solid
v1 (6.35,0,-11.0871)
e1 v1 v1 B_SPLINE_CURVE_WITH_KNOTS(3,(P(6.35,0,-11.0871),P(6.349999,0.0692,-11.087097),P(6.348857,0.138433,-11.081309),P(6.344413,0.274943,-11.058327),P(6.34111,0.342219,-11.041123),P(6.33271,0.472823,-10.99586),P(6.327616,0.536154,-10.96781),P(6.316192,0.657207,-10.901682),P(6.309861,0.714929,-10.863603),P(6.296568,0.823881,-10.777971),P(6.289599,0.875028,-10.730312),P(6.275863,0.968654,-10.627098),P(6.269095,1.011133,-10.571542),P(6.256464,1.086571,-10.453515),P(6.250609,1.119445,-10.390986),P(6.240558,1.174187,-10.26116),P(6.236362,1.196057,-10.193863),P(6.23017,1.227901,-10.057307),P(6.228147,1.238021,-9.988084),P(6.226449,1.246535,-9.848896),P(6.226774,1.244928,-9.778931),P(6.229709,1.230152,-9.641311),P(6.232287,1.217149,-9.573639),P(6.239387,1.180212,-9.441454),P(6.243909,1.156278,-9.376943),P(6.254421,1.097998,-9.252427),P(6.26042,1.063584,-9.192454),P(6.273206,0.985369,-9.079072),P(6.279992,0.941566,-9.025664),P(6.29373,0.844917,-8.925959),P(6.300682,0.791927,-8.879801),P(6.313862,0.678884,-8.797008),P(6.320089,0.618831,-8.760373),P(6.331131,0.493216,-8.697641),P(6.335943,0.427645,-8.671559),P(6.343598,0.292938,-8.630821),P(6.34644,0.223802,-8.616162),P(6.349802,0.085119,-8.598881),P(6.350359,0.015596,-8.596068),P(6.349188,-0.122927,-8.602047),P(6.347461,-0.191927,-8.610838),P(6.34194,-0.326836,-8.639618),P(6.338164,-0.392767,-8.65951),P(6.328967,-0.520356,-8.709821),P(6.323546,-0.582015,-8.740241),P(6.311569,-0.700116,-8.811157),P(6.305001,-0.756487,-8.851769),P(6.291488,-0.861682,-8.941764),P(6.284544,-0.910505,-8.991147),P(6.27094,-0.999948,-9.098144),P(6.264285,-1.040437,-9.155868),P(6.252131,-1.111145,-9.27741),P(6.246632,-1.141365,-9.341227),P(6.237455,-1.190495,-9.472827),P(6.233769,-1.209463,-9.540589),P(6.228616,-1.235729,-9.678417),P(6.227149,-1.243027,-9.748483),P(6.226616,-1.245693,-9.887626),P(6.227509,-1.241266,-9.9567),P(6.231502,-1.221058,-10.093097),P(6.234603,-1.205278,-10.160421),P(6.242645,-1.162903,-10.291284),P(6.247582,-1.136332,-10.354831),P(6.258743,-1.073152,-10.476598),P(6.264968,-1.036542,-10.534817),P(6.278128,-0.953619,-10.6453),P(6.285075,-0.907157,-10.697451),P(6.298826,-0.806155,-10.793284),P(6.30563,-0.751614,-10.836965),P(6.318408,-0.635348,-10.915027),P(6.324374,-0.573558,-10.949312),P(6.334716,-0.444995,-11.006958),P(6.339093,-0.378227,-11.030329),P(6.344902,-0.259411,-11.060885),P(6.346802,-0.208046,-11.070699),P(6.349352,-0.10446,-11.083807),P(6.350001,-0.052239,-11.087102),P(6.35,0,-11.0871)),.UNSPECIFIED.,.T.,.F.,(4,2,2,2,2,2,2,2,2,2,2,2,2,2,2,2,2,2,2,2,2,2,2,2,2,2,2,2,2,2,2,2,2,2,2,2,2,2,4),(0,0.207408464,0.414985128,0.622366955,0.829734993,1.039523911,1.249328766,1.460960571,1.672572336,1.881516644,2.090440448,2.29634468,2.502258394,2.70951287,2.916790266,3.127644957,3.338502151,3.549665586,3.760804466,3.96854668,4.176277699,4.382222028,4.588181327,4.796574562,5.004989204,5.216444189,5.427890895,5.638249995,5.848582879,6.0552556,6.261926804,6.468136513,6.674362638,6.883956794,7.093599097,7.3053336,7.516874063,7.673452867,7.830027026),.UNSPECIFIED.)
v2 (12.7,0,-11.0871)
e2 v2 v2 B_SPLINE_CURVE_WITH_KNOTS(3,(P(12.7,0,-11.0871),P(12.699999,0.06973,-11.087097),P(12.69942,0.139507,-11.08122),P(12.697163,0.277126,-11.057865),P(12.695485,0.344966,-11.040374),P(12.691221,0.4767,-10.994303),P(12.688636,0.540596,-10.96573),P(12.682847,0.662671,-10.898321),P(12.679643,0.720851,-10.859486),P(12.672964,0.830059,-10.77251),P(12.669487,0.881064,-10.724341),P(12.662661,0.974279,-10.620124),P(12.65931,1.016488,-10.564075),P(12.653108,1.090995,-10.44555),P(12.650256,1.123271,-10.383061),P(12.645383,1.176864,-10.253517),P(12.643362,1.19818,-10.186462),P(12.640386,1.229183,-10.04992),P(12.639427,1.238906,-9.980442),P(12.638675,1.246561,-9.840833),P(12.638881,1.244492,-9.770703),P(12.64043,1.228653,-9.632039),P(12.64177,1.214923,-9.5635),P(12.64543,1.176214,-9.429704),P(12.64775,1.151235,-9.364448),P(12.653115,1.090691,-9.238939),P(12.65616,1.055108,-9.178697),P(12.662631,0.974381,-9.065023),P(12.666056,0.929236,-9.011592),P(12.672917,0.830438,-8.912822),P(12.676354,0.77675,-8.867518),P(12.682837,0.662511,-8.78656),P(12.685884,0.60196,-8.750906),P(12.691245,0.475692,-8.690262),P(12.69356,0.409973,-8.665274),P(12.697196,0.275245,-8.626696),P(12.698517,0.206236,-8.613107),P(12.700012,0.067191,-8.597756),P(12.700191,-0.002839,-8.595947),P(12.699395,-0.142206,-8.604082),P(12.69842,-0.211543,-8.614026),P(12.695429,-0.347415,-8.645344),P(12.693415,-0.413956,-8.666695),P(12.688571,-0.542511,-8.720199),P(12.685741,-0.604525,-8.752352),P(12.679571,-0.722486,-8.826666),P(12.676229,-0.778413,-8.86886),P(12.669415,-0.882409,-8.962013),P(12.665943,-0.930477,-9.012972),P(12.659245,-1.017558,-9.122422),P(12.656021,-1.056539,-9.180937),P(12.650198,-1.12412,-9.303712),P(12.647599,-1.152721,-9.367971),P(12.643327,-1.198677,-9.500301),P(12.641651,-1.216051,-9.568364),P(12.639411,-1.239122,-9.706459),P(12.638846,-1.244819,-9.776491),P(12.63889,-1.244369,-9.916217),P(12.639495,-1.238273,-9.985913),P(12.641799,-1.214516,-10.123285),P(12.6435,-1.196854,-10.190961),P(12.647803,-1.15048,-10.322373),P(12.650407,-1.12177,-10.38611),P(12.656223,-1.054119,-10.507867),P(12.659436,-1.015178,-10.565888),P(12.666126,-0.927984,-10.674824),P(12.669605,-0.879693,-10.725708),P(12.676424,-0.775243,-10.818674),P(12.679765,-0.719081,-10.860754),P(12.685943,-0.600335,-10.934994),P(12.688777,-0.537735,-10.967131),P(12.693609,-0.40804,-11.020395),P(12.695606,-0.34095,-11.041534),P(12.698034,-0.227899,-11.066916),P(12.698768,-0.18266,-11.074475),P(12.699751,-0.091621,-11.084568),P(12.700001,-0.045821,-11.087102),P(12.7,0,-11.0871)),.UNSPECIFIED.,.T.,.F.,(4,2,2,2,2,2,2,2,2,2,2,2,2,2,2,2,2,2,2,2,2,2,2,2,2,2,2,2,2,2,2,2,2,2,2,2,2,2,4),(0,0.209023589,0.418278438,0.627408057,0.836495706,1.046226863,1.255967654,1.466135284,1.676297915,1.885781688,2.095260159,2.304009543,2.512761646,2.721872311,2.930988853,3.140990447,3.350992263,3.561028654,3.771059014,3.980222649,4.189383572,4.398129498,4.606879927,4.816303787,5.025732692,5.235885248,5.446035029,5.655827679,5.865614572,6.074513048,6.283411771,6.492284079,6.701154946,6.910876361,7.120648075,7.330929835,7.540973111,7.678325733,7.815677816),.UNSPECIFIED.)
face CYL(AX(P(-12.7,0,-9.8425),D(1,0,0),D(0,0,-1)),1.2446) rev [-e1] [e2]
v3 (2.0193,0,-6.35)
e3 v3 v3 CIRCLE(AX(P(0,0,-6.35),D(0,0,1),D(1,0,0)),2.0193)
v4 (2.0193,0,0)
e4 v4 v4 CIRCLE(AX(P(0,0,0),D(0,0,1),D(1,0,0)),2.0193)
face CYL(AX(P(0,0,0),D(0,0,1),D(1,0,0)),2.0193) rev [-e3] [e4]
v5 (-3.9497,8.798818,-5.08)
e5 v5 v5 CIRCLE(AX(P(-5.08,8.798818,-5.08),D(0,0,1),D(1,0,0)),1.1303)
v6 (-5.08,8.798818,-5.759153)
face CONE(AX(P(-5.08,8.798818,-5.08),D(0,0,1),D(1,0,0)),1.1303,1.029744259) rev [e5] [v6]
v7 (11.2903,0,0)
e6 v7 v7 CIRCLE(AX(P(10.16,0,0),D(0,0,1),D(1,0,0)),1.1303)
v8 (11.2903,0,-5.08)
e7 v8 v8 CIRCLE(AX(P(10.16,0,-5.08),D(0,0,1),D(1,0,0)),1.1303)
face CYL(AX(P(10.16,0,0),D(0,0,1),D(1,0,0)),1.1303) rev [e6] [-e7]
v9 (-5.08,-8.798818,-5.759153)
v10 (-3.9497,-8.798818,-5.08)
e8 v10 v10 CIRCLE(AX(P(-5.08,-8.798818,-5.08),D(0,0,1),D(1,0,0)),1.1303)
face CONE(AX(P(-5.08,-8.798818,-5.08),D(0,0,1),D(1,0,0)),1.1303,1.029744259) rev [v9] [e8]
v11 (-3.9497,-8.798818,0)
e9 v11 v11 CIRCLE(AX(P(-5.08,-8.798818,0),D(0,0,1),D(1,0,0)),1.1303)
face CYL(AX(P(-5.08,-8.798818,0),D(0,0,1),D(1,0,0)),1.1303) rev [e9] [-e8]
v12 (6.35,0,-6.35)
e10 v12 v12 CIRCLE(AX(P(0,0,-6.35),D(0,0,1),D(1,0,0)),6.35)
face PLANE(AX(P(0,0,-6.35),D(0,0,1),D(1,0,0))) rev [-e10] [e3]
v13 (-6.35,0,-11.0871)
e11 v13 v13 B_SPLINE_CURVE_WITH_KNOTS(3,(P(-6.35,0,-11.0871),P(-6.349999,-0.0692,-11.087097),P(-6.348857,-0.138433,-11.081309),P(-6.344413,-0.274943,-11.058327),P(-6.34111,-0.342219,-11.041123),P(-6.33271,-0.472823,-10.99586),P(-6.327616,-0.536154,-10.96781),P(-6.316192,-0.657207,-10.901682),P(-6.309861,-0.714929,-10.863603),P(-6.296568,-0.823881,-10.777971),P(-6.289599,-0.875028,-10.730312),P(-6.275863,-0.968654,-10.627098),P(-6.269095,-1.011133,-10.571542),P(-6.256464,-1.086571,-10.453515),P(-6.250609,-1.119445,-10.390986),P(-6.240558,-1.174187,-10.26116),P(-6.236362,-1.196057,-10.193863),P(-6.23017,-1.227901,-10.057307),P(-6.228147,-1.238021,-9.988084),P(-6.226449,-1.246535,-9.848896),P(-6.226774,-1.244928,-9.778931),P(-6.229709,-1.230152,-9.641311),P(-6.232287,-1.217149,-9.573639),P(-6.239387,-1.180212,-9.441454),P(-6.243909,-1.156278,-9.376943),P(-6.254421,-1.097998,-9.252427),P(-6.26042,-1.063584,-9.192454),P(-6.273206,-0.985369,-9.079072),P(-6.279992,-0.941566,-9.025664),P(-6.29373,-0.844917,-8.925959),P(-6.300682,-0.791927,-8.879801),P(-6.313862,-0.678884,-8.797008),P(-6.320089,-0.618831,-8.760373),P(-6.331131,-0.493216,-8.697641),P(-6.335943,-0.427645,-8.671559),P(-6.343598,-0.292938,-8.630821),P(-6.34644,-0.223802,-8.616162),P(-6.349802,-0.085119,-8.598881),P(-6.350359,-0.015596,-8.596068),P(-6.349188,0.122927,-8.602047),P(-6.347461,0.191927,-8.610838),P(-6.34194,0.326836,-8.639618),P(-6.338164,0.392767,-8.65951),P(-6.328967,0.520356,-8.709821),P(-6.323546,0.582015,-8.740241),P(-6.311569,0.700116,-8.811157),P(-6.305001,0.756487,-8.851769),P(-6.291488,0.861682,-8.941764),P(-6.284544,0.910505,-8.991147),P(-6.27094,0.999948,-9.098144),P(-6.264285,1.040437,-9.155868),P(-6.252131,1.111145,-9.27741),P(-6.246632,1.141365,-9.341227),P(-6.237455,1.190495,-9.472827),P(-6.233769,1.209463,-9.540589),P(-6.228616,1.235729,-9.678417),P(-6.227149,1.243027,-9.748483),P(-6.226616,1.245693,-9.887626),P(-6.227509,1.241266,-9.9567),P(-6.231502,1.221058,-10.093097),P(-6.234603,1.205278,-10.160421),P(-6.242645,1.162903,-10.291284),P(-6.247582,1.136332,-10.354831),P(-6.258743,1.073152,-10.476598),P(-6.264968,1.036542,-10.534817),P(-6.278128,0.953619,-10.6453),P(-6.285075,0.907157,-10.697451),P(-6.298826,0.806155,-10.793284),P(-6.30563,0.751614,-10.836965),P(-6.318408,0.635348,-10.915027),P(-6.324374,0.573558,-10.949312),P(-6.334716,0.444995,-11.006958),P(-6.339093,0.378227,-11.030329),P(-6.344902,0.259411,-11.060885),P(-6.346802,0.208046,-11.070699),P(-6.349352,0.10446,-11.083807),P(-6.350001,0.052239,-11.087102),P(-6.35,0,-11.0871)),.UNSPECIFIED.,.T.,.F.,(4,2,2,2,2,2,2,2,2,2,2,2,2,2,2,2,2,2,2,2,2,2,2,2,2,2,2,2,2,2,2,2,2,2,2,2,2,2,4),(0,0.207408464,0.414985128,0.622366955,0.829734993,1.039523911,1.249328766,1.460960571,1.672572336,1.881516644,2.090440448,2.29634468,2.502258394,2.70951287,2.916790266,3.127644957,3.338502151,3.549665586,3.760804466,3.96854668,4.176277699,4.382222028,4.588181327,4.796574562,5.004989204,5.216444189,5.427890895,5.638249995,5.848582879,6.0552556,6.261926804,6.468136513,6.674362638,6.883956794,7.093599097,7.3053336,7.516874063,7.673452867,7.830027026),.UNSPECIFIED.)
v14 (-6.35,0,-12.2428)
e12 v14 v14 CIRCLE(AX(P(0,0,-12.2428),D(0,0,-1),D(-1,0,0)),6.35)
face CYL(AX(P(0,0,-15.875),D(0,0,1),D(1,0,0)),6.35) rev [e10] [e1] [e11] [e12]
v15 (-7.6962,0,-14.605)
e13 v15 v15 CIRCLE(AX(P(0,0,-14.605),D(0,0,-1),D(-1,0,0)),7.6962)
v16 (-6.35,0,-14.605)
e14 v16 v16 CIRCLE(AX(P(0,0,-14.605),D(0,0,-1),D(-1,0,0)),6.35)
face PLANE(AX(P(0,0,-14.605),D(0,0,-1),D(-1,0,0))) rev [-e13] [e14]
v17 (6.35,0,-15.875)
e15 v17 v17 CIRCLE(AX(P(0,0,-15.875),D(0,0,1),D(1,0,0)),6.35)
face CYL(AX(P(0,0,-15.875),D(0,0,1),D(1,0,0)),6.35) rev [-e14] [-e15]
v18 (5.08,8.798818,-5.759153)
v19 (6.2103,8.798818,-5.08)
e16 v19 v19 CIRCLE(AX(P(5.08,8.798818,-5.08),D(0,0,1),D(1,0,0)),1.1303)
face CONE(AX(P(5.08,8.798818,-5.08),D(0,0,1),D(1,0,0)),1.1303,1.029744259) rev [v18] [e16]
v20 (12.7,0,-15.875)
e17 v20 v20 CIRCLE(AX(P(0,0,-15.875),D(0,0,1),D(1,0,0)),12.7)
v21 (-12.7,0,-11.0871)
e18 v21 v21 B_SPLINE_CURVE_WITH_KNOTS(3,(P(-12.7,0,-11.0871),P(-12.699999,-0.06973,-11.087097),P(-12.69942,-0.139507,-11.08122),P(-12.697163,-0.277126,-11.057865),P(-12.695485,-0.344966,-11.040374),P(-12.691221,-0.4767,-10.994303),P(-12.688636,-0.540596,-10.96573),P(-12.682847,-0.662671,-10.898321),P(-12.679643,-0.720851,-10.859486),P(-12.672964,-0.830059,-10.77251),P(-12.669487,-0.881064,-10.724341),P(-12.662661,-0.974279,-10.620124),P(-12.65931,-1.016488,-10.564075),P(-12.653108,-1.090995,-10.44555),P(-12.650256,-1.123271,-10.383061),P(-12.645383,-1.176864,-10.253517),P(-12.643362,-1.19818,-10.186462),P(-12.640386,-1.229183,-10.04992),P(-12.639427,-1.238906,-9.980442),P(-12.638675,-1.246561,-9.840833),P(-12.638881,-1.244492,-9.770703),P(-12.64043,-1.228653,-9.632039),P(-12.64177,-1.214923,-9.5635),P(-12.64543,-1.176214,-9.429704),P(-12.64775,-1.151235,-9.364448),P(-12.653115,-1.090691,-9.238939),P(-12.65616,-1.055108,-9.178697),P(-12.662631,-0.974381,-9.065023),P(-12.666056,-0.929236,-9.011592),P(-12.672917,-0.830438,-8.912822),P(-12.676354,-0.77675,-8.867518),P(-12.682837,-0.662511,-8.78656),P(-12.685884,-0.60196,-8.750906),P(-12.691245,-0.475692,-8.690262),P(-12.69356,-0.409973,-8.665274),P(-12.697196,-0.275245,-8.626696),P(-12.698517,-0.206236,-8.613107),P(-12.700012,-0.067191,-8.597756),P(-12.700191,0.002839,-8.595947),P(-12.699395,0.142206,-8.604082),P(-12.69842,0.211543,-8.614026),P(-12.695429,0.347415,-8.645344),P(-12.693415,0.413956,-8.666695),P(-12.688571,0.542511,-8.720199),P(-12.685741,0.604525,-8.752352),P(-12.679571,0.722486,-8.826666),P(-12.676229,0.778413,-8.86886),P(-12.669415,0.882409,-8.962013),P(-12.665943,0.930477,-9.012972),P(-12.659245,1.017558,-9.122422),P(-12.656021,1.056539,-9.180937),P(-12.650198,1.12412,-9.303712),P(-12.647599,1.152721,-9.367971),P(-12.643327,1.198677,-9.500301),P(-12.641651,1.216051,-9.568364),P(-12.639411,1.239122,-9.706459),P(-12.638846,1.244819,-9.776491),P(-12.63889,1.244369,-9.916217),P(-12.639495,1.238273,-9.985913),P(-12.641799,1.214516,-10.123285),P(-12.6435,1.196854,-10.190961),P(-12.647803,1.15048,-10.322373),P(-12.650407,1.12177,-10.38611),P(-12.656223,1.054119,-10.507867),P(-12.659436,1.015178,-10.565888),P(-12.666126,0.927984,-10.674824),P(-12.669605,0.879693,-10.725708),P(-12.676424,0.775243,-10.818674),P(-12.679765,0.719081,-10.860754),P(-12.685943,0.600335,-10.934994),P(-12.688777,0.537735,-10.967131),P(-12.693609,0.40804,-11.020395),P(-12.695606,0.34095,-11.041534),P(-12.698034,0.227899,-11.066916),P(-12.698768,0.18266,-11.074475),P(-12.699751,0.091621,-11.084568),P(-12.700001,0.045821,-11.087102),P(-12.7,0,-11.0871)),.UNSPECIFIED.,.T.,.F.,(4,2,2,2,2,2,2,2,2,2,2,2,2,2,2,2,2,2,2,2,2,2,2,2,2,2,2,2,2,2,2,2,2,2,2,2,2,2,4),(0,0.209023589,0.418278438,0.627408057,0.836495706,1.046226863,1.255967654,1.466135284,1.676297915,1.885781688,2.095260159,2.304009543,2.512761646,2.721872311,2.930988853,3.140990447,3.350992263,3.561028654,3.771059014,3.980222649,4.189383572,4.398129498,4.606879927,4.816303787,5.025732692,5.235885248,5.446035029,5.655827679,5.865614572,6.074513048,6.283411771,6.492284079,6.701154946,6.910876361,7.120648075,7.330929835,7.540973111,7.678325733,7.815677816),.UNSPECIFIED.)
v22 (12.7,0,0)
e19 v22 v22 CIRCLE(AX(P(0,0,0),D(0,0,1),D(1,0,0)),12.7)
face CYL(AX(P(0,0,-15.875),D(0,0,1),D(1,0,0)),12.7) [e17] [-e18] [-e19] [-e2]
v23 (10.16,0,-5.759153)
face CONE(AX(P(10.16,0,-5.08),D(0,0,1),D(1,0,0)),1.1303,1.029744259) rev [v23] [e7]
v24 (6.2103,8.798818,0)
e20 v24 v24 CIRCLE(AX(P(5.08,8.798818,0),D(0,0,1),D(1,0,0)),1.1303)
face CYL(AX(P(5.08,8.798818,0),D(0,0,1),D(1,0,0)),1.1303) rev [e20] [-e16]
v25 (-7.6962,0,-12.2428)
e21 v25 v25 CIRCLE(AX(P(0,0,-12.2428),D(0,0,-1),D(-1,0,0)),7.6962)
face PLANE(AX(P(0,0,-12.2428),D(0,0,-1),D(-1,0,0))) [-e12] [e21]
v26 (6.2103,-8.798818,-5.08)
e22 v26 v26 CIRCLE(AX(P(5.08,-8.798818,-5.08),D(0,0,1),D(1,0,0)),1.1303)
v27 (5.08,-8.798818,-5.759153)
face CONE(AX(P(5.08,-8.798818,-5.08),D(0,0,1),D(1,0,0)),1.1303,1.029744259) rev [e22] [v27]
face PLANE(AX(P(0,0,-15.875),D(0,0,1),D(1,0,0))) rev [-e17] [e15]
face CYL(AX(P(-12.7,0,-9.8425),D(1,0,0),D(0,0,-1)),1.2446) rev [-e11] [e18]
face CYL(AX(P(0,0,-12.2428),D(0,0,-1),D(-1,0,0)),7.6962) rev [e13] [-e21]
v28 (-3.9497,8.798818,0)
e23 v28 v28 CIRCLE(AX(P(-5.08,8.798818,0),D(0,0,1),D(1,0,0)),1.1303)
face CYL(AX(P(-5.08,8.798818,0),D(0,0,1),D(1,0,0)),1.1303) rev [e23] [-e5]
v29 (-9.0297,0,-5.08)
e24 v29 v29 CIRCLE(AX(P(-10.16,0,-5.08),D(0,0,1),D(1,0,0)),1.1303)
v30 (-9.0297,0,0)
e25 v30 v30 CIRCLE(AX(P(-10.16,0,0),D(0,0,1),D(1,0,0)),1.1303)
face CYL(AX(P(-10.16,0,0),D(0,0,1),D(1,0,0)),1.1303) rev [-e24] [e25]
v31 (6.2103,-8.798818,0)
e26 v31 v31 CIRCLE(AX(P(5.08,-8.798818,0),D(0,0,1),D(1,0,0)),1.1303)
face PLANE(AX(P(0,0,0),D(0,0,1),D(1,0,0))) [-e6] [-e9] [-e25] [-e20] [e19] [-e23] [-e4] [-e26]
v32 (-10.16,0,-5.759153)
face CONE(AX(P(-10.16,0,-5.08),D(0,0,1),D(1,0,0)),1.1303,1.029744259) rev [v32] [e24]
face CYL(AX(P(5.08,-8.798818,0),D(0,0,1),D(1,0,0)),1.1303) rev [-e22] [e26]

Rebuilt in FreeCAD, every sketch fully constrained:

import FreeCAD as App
import Part
import Sketcher

V = App.Vector
Q = App.Units.Quantity


def faces_at(feature, points):
    """Names of the faces that lie closest to the given points."""
    faces = feature.Shape.Faces
    near = lambda p: min(range(len(faces)), key=lambda i: faces[i].distToShape(Part.Vertex(*p))[0])
    return sorted({f"Face{near(p) + 1}" for p in points})

doc = App.newDocument("Part")
body = doc.addObject("PartDesign::Body", "Body")

# Sketch on XY plane
sketch1 = doc.addObject("Sketcher::SketchObject", "Sketch")
body.addObject(sketch1)
sketch1.AttachmentSupport = (doc.XY_Plane, [""])
sketch1.MapMode = "FlatFace"
sketch1.addGeometry(Part.Circle(V(0, 0, 0), V(0, 0, 1), 13), False)
sketch1.addConstraint([
    Sketcher.Constraint("Coincident", 0, 3, -1, 1),
    Sketcher.Constraint("Diameter", 0, Q("1 in")),
])
pad1 = doc.addObject("PartDesign::Pad", "Pad")
body.addObject(pad1)
pad1.Profile = sketch1
pad1.Length = Q("0.625 in")
pad1.Reversed = True
doc.recompute()

thickness = doc.addObject("PartDesign::Thickness", "Thickness")
body.addObject(thickness)
thickness.Base = (pad1, faces_at(pad1, [(0, 0, -15.875)]))
thickness.Value = Q("0.25 in")
thickness.Reversed = True
thickness.Join = "Intersection"

# Sketch on YZ plane
sketch2 = doc.addObject("Sketcher::SketchObject", "Sketch001")
body.addObject(sketch2)
sketch2.AttachmentSupport = (doc.YZ_Plane, [""])
sketch2.MapMode = "FlatFace"
sketch2.addGeometry(Part.Circle(V(0, -9.8, 0), V(0, 0, 1), 1.2), False)
sketch2.addConstraint([
    Sketcher.Constraint("PointOnObject", 0, 3, -2),
    Sketcher.Constraint("Diameter", 0, Q("0.098 in")),
    Sketcher.Constraint("DistanceY", 0, 3, -1, 1, Q("0.3875 in")),
])
pocket1 = doc.addObject("PartDesign::Pocket", "Pocket")
body.addObject(pocket1)
pocket1.Profile = sketch2
pocket1.Type = "ThroughAll"
pocket1.Midplane = True

# Sketch on XY plane
sketch3 = doc.addObject("Sketcher::SketchObject", "Sketch002")
body.addObject(sketch3)
sketch3.AttachmentSupport = (doc.XY_Plane, [""])
sketch3.MapMode = "FlatFace"
sketch3.AttachmentOffset = App.Placement(V(0, 0, -0.575 * 25.4), App.Rotation())
sketch3.addGeometry([
    Part.Circle(V(0, 0, 0), V(0, 0, 1), 8),
    Part.Circle(V(0, 0, 0), V(0, 0, 1), 6),
], False)
sketch3.addConstraint([
    Sketcher.Constraint("Coincident", 0, 3, -1, 1),
    Sketcher.Constraint("Coincident", 1, 3, -1, 1),
    Sketcher.Constraint("Diameter", 1, Q("0.5 in")),
    Sketcher.Constraint("Diameter", 0, Q("0.606 in")),
])
pocket2 = doc.addObject("PartDesign::Pocket", "Pocket001")
body.addObject(pocket2)
pocket2.Profile = sketch3
pocket2.Length = Q("0.093 in")
pocket2.Reversed = True

# Sketch on XY plane
sketch4 = doc.addObject("Sketcher::SketchObject", "Sketch003")
body.addObject(sketch4)
sketch4.AttachmentSupport = (doc.XY_Plane, [""])
sketch4.MapMode = "FlatFace"
sketch4.addGeometry(Part.Circle(V(0, 0, 0), V(0, 0, 1), 2), False)
sketch4.addConstraint([
    Sketcher.Constraint("Coincident", 0, 3, -1, 1),
    Sketcher.Constraint("Diameter", 0, Q("0.159 in")),
])
doc.recompute()
hole = doc.addObject("PartDesign::Hole", "Hole")
body.addObject(hole)
hole.Profile = sketch4
hole.ThreadType = "None"
hole.Diameter = Q("0.159 in")
hole.DepthType = "ThroughAll"

# Sketch on YZ plane
sketch5 = doc.addObject("Sketcher::SketchObject", "Sketch004")
body.addObject(sketch5)
sketch5.AttachmentSupport = (doc.YZ_Plane, [""])
sketch5.MapMode = "FlatFace"
sketch5.AttachmentOffset = App.Placement(V(0, 0, -0.4 * 25.4), App.Rotation())
sketch5.addGeometry([
    Part.LineSegment(V(0, -5.8, 0), V(0, 0, 0)),
    Part.LineSegment(V(0, 0, 0), V(-1.1, 0, 0)),
    Part.LineSegment(V(-1.1, 0, 0), V(-1.1, -5.1, 0)),
    Part.LineSegment(V(-1.1, -5.1, 0), V(0, -5.8, 0)),
], False)
sketch5.addConstraint([
    Sketcher.Constraint("Coincident", 0, 2, 1, 1),
    Sketcher.Constraint("Coincident", 1, 2, 2, 1),
    Sketcher.Constraint("Coincident", 2, 2, 3, 1),
    Sketcher.Constraint("Coincident", 3, 2, 0, 1),
    Sketcher.Constraint("Vertical", 0),
    Sketcher.Constraint("Horizontal", 1),
    Sketcher.Constraint("Vertical", 2),
    Sketcher.Constraint("Coincident", 0, 2, -1, 1),
    Sketcher.Constraint("DistanceY", 2, 2, 2, 1, Q("0.2 in")),
    Sketcher.Constraint("Angle", 3, Q("-31 deg")),
    Sketcher.Constraint("DistanceX", 1, 2, 1, 1, Q("0.0445 in")),
])
groove = doc.addObject("PartDesign::Groove", "Groove")
body.addObject(groove)
groove.Profile = sketch5
groove.ReferenceAxis = (sketch5, ["V_Axis"])
groove.Angle = 360
doc.recompute()

polarpattern = doc.addObject("PartDesign::PolarPattern", "PolarPattern")
body.addObject(polarpattern)
polarpattern.Originals = [groove]
polarpattern.Axis = (doc.Z_Axis, [""])
polarpattern.Angle = 360
polarpattern.Occurrences = 6
body.Tip = polarpattern

doc.recompute()
